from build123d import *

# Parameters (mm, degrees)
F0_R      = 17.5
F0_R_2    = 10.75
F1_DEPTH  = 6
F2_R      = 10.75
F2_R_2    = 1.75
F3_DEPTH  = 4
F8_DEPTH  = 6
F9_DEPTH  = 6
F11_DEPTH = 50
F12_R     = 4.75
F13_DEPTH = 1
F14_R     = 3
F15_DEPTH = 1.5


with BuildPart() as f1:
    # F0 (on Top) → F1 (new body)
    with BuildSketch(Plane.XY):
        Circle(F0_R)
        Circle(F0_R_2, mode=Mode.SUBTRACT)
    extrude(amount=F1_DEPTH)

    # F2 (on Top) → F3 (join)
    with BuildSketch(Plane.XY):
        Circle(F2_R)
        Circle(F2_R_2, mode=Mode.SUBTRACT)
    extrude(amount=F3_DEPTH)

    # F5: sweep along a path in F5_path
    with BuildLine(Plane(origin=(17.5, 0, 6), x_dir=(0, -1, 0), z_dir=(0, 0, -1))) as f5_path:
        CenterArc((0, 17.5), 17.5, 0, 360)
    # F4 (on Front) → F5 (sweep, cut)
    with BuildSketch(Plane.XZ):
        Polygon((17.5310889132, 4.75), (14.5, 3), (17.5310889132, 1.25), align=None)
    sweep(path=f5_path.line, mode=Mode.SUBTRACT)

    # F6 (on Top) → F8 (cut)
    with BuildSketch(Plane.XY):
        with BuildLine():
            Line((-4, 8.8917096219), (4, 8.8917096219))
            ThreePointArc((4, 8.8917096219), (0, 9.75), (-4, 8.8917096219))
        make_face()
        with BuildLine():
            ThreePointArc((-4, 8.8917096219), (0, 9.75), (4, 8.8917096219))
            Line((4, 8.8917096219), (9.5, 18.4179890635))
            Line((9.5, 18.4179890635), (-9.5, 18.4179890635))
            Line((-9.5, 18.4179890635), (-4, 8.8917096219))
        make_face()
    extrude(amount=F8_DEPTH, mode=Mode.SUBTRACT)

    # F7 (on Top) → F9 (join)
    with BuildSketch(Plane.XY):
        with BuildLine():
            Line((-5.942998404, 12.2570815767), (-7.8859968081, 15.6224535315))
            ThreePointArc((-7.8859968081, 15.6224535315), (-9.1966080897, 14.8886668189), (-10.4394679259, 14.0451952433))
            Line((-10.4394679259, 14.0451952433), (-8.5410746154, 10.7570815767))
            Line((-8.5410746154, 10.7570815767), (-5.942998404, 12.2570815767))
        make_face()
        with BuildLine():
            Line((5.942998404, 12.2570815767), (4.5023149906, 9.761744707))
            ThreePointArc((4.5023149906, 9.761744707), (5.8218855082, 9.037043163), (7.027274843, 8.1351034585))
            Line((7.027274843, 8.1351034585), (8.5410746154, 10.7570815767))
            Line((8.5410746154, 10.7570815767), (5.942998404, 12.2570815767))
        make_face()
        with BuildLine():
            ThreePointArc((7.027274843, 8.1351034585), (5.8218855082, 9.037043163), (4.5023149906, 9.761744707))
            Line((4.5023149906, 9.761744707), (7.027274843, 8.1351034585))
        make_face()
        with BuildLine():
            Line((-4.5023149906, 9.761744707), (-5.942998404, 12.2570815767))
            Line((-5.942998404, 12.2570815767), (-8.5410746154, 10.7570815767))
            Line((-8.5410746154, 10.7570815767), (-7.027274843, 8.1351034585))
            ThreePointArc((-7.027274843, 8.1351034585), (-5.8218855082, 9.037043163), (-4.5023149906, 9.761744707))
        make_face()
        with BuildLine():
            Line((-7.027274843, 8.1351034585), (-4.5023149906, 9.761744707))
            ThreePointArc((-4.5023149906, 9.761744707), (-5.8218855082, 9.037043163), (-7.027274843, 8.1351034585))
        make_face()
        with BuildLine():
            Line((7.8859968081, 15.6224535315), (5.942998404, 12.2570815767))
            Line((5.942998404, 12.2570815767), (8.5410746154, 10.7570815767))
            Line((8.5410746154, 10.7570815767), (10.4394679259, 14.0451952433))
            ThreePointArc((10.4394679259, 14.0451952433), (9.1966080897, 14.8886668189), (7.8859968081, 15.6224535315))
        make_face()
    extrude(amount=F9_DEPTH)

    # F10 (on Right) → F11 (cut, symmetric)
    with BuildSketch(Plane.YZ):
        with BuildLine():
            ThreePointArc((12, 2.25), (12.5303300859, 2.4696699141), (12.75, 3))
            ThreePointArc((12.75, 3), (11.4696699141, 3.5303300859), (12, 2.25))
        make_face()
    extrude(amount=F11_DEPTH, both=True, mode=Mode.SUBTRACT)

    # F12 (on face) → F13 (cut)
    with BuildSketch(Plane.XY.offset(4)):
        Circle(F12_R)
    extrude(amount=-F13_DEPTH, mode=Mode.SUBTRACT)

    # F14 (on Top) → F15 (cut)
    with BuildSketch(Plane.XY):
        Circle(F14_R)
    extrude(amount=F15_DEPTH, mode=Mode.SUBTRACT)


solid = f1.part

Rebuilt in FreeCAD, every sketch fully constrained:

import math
import FreeCAD as App
import Part
import Sketcher

V = App.Vector
Q = App.Units.Quantity

doc = App.newDocument("Part")
params = doc.addObject("Spreadsheet::Sheet", "Params")
for row, (alias, value) in enumerate([
    ("sketch1_diameter", "35 mm"),
    ("sketch1_diameter2", "21.5 mm"),
    ("pad1_length", "6 mm"),
    ("sketch2_diameter", "21.5 mm"),
    ("sketch2_diameter2", "3.5 mm"),
    ("pad2_length", "4 mm"),
    ("sketch3_height", "3.5 mm"),
    ("sketch4_diameter", "35 mm"),
    ("sketch5_width", "8 mm"),
    ("sketch5_width2", "19 mm"),
    ("pocket1_length", "6 mm"),
    ("sketch6_radius", "17.5 mm"),
    ("pad3_length", "6 mm"),
    ("sketch7_radius", "0.75 mm"),
    ("pocket2_length", "100 mm"),
    ("sketch8_diameter", "9.5 mm"),
    ("pocket3_length", "1 mm"),
    ("sketch9_diameter", "6 mm"),
    ("pocket4_length", "1.5 mm"),
], start=1):
    params.set(f"A{row}", alias)
    params.set(f"B{row}", "=" + value)
    params.setAlias(f"B{row}", alias)

body = doc.addObject("PartDesign::Body", "Body")

# Sketch on XY plane
sketch1 = body.newObject("Sketcher::SketchObject", "Sketch")
sketch1.AttachmentSupport = (doc.getObject("XY_Plane"), [""])
sketch1.MapMode = "FlatFace"
sketch1.addGeometry([
    Part.Circle(V(0, 0, 0), V(0, 0, 1), 18),
    Part.Circle(V(0, 0, 0), V(0, 0, 1), 11),
], False)
sketch1.addConstraint([
    Sketcher.Constraint("Coincident", 0, 3, -1, 1),
    Sketcher.Constraint("Coincident", 1, 3, -1, 1),
    Sketcher.Constraint("Diameter", 0, 35.0),
    Sketcher.Constraint("Diameter", 1, 21.5),
])
sketch1.setExpression("Constraints[2]", "Params.sketch1_diameter")
sketch1.setExpression("Constraints[3]", "Params.sketch1_diameter2")
pad1 = body.newObject("PartDesign::Pad", "Pad")
pad1.Profile = sketch1
pad1.setExpression("Length", "Params.pad1_length")

# Sketch on XY plane
sketch2 = body.newObject("Sketcher::SketchObject", "Sketch001")
sketch2.AttachmentSupport = (doc.getObject("XY_Plane"), [""])
sketch2.MapMode = "FlatFace"
sketch2.addGeometry([
    Part.Circle(V(0, 0, 0), V(0, 0, 1), 10.8),
    Part.Circle(V(0, 0, 0), V(0, 0, 1), 1.8),
], False)
sketch2.addConstraint([
    Sketcher.Constraint("Coincident", 0, 3, -1, 1),
    Sketcher.Constraint("Coincident", 1, 3, -1, 1),
    Sketcher.Constraint("Diameter", 0, 21.5),
    Sketcher.Constraint("Diameter", 1, 3.5),
])
sketch2.setExpression("Constraints[2]", "Params.sketch2_diameter")
sketch2.setExpression("Constraints[3]", "Params.sketch2_diameter2")
pad2 = body.newObject("PartDesign::Pad", "Pad001")
pad2.Profile = sketch2
pad2.setExpression("Length", "Params.pad2_length")

# Sketch on XZ plane
sketch3 = body.newObject("Sketcher::SketchObject", "Sketch002")
sketch3.AttachmentSupport = (doc.getObject("XZ_Plane"), [""])
sketch3.MapMode = "FlatFace"
sketch3.addGeometry([
    Part.LineSegment(V(17.5, 4.8, 0), V(14.5, 3, 0)),
    Part.LineSegment(V(14.5, 3, 0), V(17.5, 1.2, 0)),
    Part.LineSegment(V(17.5, 1.2, 0), V(17.5, 4.8, 0)),
], False)
sketch3.addConstraint([
    Sketcher.Constraint("Coincident", 0, 2, 1, 1),
    Sketcher.Constraint("Coincident", 1, 2, 2, 1),
    Sketcher.Constraint("Coincident", 2, 2, 0, 1),
    Sketcher.Constraint("Vertical", 2),
    Sketcher.Constraint("Equal", 0, 1),
    Sketcher.Constraint("Angle", 0, Q("-150 deg")),
    Sketcher.Constraint("DistanceY", 2, 1, 2, 2, 3.5),
    Sketcher.Constraint("DistanceY", -1, 1, 0, 2, 3.0),
    Sketcher.Constraint("DistanceX", -1, 1, 0, 2, 14.5),
])
sketch3.setExpression("Constraints[6]", "Params.sketch3_height")

# Sketch on XY plane
sketch4 = body.newObject("Sketcher::SketchObject", "Sketch003")
sketch4.AttachmentSupport = (doc.getObject("XY_Plane"), [""])
sketch4.MapMode = "FlatFace"
sketch4.AttachmentOffset = App.Placement(V(0, 0, 6), App.Rotation())
sketch4.addGeometry(Part.Circle(V(0, 0, 0), V(0, 0, 1), 18), False)
sketch4.addConstraint([
    Sketcher.Constraint("Coincident", 0, 3, -1, 1),
    Sketcher.Constraint("Diameter", 0, 35.0),
])
sketch4.setExpression("Constraints[1]", "Params.sketch4_diameter")
doc.recompute()

subtractivepipe = body.newObject("PartDesign::SubtractivePipe", "SubtractivePipe")
subtractivepipe.Profile = sketch3
subtractivepipe.Spine = (sketch4, ["Edge1"])

# Sketch on XY plane
sketch5 = body.newObject("Sketcher::SketchObject", "Sketch004")
sketch5.AttachmentSupport = (doc.getObject("XY_Plane"), [""])
sketch5.MapMode = "FlatFace"
sketch5.addGeometry([
    Part.LineSegment(V(-4, 9, 0), V(4, 9, 0)),
    Part.LineSegment(V(4, 9, 0), V(10, 18, 0)),
    Part.LineSegment(V(10, 18, 0), V(-10, 18, 0)),
    Part.LineSegment(V(-10, 18, 0), V(-4, 9, 0)),
], False)
sketch5.addConstraint([
    Sketcher.Constraint("Coincident", 0, 2, 1, 1),
    Sketcher.Constraint("Coincident", 1, 2, 2, 1),
    Sketcher.Constraint("Coincident", 2, 2, 3, 1),
    Sketcher.Constraint("Coincident", 3, 2, 0, 1),
    Sketcher.Constraint("Horizontal", 0),
    Sketcher.Constraint("Horizontal", 2),
    Sketcher.Constraint("Equal", 1, 3),
    Sketcher.Constraint("DistanceX", 0, 1, 0, 2, 8.0),
    Sketcher.Constraint("DistanceX", 2, 2, 2, 1, 19.0),
    Sketcher.Constraint("Angle", 1, Q("60 deg")),
    Sketcher.Constraint("DistanceX", -1, 1, 0, 2, 4.0),
    Sketcher.Constraint("DistanceY", -1, 1, 0, 2, 8.89171),
])
sketch5.setExpression("Constraints[7]", "Params.sketch5_width")
sketch5.setExpression("Constraints[8]", "Params.sketch5_width2")
pocket1 = body.newObject("PartDesign::Pocket", "Pocket")
pocket1.Profile = sketch5
pocket1.setExpression("Length", "Params.pocket1_length")
pocket1.Reversed = True

# Sketch on XY plane
sketch6 = body.newObject("Sketcher::SketchObject", "Sketch005")
sketch6.AttachmentSupport = (doc.getObject("XY_Plane"), [""])
sketch6.MapMode = "FlatFace"
sketch6.addGeometry([
    Part.LineSegment(V(-5.9, 12.3, 0), V(-7.9, 15.6, 0)),  # 0
    Part.ArcOfCircle(Part.Circle(V(0, 0, 0), V(0, 0, 1), 17.5), math.radians(116.78), math.radians(126.62)),  # 1
    Part.LineSegment(V(-10.4, 14, 0), V(-8.5, 10.8, 0)),  # 2
    Part.LineSegment(V(-8.5, 10.8, 0), V(-7, 8.1, 0)),  # 3
    Part.LineSegment(V(-7, 8.1, 0), V(-4.5, 9.8, 0)),  # 4
    Part.LineSegment(V(-4.5, 9.8, 0), V(-5.9, 12.3, 0)),  # 5
    Part.LineSegment(V(5.9, 12.3, 0), V(4.5, 9.8, 0)),  # 6
    Part.LineSegment(V(4.5, 9.8, 0), V(7, 8.1, 0)),  # 7
    Part.LineSegment(V(7, 8.1, 0), V(8.5, 10.8, 0)),  # 8
    Part.LineSegment(V(8.5, 10.8, 0), V(10.4, 14, 0)),  # 9
    Part.ArcOfCircle(Part.Circle(V(0, 0, 0), V(0, 0, 1), 17.5), math.radians(53.38), math.radians(63.22)),  # 10
    Part.LineSegment(V(7.9, 15.6, 0), V(5.9, 12.3, 0)),  # 11
], False)
sketch6.addConstraint([
    Sketcher.Constraint("Coincident", 0, 2, 1, 1),
    Sketcher.Constraint("Coincident", 1, 2, 2, 1),
    Sketcher.Constraint("Coincident", 2, 2, 3, 1),
    Sketcher.Constraint("Coincident", 3, 2, 4, 1),
    Sketcher.Constraint("Coincident", 4, 2, 5, 1),
    Sketcher.Constraint("Coincident", 5, 2, 0, 1),
    Sketcher.Constraint("Coincident", 6, 2, 7, 1),
    Sketcher.Constraint("Coincident", 7, 2, 8, 1),
    Sketcher.Constraint("Coincident", 8, 2, 9, 1),
    Sketcher.Constraint("Coincident", 9, 2, 10, 1),
    Sketcher.Constraint("Coincident", 10, 2, 11, 1),
    Sketcher.Constraint("Coincident", 11, 2, 6, 1),
    Sketcher.Constraint("Coincident", 1, 3, -1, 1),
    Sketcher.Constraint("Coincident", 10, 3, -1, 1),
    Sketcher.Constraint("Equal", 1, 10),
    Sketcher.Constraint("Symmetric", 4, 2, 6, 2, -2),
    Sketcher.Constraint("Symmetric", 3, 2, 7, 2, -2),
    Sketcher.Constraint("Symmetric", 2, 2, 8, 2, -2),
    Sketcher.Constraint("Symmetric", 5, 2, 11, 2, -2),
    Sketcher.Constraint("Parallel", 0, 2),
    Sketcher.Constraint("Parallel", 2, 3),
    Sketcher.Constraint("Parallel", 3, 5),
    Sketcher.Constraint("Parallel", 8, 9),
    Sketcher.Constraint("Parallel", 9, 11),
    Sketcher.Constraint("Radius", 1, 17.5),
    Sketcher.Constraint("Angle", 0, Q("120 deg")),
    Sketcher.Constraint("DistanceY", 2, 2, 5, 2, 1.5),
    Sketcher.Constraint("DistanceX", 5, 2, -1, 1, 5.942998),
    Sketcher.Constraint("DistanceX", 0, 2, 5, 2, 1.942998),
    Sketcher.Constraint("Distance", 3, 3.0276),
    Sketcher.Constraint("Distance", 4, 3.003562),
    Sketcher.Constraint("DistanceX", 0, 2, 3, 2, 0.858722),
])
sketch6.setExpression("Constraints[24]", "Params.sketch6_radius")
pad3 = body.newObject("PartDesign::Pad", "Pad002")
pad3.Profile = sketch6
pad3.setExpression("Length", "Params.pad3_length")

# Sketch on YZ plane
sketch7 = body.newObject("Sketcher::SketchObject", "Sketch006")
sketch7.AttachmentSupport = (doc.getObject("YZ_Plane"), [""])
sketch7.MapMode = "FlatFace"
sketch7.addGeometry([
    Part.ArcOfCircle(Part.Circle(V(12, 3, 0), V(0, 0, 1), 0.8), math.radians(-90), math.radians(0)),
    Part.ArcOfCircle(Part.Circle(V(12, 3, 0), V(0, 0, 1), 0.8), math.radians(0), math.radians(270)),
], False)
sketch7.addConstraint([
    Sketcher.Constraint("Tangent", 0, 1, 1, 2),
    Sketcher.Constraint("Coincident", 1, 1, 0, 2),
    Sketcher.Constraint("Horizontal", 0, 3, 1, 1),
    Sketcher.Constraint("Vertical", 1, 3, 0, 1),
    Sketcher.Constraint("Radius", 0, 0.75),
    Sketcher.Constraint("DistanceX", -1, 1, 0, 3, 12.0),
    Sketcher.Constraint("DistanceY", -1, 1, 0, 3, 3.0),
])
sketch7.setExpression("Constraints[4]", "Params.sketch7_radius")
pocket2 = body.newObject("PartDesign::Pocket", "Pocket001")
pocket2.Profile = sketch7
pocket2.setExpression("Length", "Params.pocket2_length")
pocket2.Midplane = True

# Sketch on XY plane
sketch8 = body.newObject("Sketcher::SketchObject", "Sketch007")
sketch8.AttachmentSupport = (doc.getObject("XY_Plane"), [""])
sketch8.MapMode = "FlatFace"
sketch8.AttachmentOffset = App.Placement(V(0, 0, 4), App.Rotation())
sketch8.addGeometry(Part.Circle(V(0, 0, 0), V(0, 0, 1), 4.8), False)
sketch8.addConstraint([
    Sketcher.Constraint("Coincident", 0, 3, -1, 1),
    Sketcher.Constraint("Diameter", 0, 9.5),
])
sketch8.setExpression("Constraints[1]", "Params.sketch8_diameter")
pocket3 = body.newObject("PartDesign::Pocket", "Pocket002")
pocket3.Profile = sketch8
pocket3.setExpression("Length", "Params.pocket3_length")

# Sketch on XY plane
sketch9 = body.newObject("Sketcher::SketchObject", "Sketch008")
sketch9.AttachmentSupport = (doc.getObject("XY_Plane"), [""])
sketch9.MapMode = "FlatFace"
sketch9.addGeometry(Part.Circle(V(0, 0, 0), V(0, 0, 1), 3), False)
sketch9.addConstraint([
    Sketcher.Constraint("Coincident", 0, 3, -1, 1),
    Sketcher.Constraint("Diameter", 0, 6.0),
])
sketch9.setExpression("Constraints[1]", "Params.sketch9_diameter")
pocket4 = body.newObject("PartDesign::Pocket", "Pocket003")
pocket4.Profile = sketch9
pocket4.setExpression("Length", "Params.pocket4_length")
pocket4.Reversed = True

doc.recompute()
